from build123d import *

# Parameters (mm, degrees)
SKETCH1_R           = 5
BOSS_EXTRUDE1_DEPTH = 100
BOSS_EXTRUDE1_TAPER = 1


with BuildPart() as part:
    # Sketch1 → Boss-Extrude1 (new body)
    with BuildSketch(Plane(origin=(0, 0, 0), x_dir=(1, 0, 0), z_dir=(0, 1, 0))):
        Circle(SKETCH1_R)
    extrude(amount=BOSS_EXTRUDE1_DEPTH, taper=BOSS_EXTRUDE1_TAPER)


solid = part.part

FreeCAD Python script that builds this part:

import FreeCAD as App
import Part
import Sketcher
from FreeCAD import Vector

doc = App.newDocument("Part")
params = doc.addObject("Spreadsheet::Sheet", "Params")
for row, (alias, value) in enumerate([
    ("sketch1_diameter", "10 mm"),
    ("pad1_length", "100 mm"),
    ("pad1_taper", "-1 deg"),
], start=1):
    params.set(f"A{row}", alias)
    params.set(f"B{row}", "=" + value)
    params.setAlias(f"B{row}", alias)

body = doc.addObject("PartDesign::Body", "Body")

sketch1 = body.newObject("Sketcher::SketchObject", "Sketch")
sketch1.AttachmentSupport = (doc.getObject("XZ_Plane"), [""])
sketch1.MapMode = "FlatFace"
sketch1.addGeometry(Part.Circle(Vector(0, 0, 0), Vector(0, 0, 1), 5), False)
sketch1.addConstraint(Sketcher.Constraint("Coincident", 0, 3, -1, 1))
sketch1.addConstraint(Sketcher.Constraint("Diameter", 0, 10.0))
sketch1.setExpression("Constraints[1]", "Params.sketch1_diameter")
pad1 = body.newObject("PartDesign::Pad", "Pad")
pad1.Profile = sketch1
pad1.setExpression("Length", "Params.pad1_length")
pad1.Reversed = True
pad1.setExpression("TaperAngle", "Params.pad1_taper")

doc.recompute()
